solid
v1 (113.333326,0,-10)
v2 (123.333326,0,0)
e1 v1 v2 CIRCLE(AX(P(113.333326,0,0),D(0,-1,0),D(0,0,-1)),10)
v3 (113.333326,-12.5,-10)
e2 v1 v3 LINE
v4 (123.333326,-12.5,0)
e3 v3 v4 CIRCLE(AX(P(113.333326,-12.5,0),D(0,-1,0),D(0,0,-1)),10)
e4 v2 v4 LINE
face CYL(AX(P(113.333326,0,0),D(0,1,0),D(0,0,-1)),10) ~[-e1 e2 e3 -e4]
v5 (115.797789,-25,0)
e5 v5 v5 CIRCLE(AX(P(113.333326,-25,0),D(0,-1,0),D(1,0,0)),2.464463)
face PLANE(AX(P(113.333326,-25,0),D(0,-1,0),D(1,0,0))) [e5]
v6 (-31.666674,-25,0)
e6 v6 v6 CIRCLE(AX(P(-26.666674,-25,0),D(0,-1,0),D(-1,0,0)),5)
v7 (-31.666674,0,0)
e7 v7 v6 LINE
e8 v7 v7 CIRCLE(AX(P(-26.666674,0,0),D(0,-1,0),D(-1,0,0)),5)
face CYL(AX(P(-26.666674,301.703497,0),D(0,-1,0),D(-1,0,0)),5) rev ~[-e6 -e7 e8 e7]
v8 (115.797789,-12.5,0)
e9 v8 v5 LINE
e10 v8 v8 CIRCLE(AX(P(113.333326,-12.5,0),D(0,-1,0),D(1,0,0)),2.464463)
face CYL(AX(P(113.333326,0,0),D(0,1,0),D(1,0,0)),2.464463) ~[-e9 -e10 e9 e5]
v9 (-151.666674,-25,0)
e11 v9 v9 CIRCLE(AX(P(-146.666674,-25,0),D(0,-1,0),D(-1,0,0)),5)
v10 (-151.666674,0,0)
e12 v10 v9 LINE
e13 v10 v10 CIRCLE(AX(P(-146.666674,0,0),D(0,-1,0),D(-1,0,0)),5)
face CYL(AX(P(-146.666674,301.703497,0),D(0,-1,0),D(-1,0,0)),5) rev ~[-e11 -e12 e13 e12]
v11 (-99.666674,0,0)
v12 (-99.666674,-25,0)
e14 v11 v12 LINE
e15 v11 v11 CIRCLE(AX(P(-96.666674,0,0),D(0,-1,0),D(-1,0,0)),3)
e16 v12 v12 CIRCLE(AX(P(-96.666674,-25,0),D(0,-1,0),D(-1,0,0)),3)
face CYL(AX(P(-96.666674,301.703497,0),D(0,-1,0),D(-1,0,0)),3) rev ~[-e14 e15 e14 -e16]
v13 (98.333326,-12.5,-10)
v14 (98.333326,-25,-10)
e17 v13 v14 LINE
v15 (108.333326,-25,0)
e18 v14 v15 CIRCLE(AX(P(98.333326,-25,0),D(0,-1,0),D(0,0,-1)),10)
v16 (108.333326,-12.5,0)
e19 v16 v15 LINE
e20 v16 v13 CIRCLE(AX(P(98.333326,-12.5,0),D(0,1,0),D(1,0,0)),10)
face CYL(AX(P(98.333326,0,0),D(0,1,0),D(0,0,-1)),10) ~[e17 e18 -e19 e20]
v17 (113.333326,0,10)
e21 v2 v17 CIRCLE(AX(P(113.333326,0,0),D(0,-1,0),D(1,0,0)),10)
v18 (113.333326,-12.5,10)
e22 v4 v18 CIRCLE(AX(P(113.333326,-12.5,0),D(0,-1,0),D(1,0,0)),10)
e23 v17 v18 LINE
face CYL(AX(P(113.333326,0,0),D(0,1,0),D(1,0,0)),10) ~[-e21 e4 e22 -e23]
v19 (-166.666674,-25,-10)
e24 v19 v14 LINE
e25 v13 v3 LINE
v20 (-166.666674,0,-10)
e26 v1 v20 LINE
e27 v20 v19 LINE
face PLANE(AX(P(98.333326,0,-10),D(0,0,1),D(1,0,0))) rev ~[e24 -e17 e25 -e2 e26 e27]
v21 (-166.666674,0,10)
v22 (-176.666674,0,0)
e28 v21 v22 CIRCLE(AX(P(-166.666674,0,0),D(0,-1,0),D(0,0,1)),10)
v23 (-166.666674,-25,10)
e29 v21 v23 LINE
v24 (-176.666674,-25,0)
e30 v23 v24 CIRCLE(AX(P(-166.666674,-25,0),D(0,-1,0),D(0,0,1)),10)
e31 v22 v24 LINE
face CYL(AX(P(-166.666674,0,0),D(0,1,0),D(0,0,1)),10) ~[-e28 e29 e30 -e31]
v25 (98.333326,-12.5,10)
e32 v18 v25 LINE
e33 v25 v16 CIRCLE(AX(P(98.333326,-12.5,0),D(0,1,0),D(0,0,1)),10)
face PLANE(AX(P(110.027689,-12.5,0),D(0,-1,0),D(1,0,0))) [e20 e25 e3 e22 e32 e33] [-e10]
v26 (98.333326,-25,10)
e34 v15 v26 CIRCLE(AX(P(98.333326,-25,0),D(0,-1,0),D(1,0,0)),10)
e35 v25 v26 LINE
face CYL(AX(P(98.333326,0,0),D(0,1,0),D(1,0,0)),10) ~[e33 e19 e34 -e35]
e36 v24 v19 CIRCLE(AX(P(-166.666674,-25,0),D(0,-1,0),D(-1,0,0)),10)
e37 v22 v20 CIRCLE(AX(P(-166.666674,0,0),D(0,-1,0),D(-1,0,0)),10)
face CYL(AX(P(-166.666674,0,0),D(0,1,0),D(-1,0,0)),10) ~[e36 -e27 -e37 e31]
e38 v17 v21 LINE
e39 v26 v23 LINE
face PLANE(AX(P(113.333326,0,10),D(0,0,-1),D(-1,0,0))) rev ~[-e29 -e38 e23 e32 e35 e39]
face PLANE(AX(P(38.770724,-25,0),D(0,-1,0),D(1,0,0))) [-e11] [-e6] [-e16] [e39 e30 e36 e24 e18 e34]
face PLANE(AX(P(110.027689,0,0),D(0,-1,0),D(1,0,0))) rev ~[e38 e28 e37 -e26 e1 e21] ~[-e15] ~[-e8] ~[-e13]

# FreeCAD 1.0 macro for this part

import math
import FreeCAD as App
import Part
import Sketcher
from FreeCAD import Vector

doc = App.newDocument("Part")
params = doc.addObject("Spreadsheet::Sheet", "Params")
for row, (alias, value) in enumerate([
    ("sketch1_radius", "10 mm"),
    ("sketch1_width", "265 mm"),
    ("pad1_length", "25 mm"),
    ("pad2_length", "25 mm"),
    ("sketch3_radius", "10 mm"),
    ("sketch3_width", "15 mm"),
    ("pad3_length", "12.5 mm"),
    ("sketch4_diameter", "10 mm"),
    ("hole_diameter", "10 mm"),
    ("sketch5_diameter", "10 mm"),
    ("hole2_diameter", "10 mm"),
    ("sketch6_diameter", "6 mm"),
    ("hole3_diameter", "6 mm"),
], start=1):
    params.set(f"A{row}", alias)
    params.set(f"B{row}", "=" + value)
    params.setAlias(f"B{row}", alias)

body = doc.addObject("PartDesign::Body", "Body")

# Sketch on XZ plane
sketch1 = body.newObject("Sketcher::SketchObject", "Sketch")
sketch1.AttachmentSupport = (doc.getObject("XZ_Plane"), [""])
sketch1.MapMode = "FlatFace"
sketch1.addGeometry(Part.LineSegment(Vector(98, 10, 0), Vector(-167, 10, 0)), False)
sketch1.addGeometry(Part.ArcOfCircle(Part.Circle(Vector(-167, 0, 0), Vector(0, 0, 1), 10), math.radians(90), math.radians(180)), False)
sketch1.addGeometry(Part.ArcOfCircle(Part.Circle(Vector(-167, 0, 0), Vector(0, 0, 1), 10), math.radians(180), math.radians(270)), False)
sketch1.addGeometry(Part.LineSegment(Vector(-167, -10, 0), Vector(98, -10, 0)), False)
sketch1.addGeometry(Part.ArcOfCircle(Part.Circle(Vector(98, 0, 0), Vector(0, 0, 1), 10), math.radians(-90), math.radians(0)), False)
sketch1.addGeometry(Part.ArcOfCircle(Part.Circle(Vector(98, 0, 0), Vector(0, 0, 1), 10), math.radians(0), math.radians(90)), False)
sketch1.addConstraint(Sketcher.Constraint("Tangent", 0, 2, 1, 1))
sketch1.addConstraint(Sketcher.Constraint("Tangent", 1, 2, 2, 1))
sketch1.addConstraint(Sketcher.Constraint("Tangent", 2, 2, 3, 1))
sketch1.addConstraint(Sketcher.Constraint("Tangent", 3, 2, 4, 1))
sketch1.addConstraint(Sketcher.Constraint("Tangent", 4, 2, 5, 1))
sketch1.addConstraint(Sketcher.Constraint("Tangent", 5, 2, 0, 1))
sketch1.addConstraint(Sketcher.Constraint("Horizontal", 0))
sketch1.addConstraint(Sketcher.Constraint("Horizontal", 3))
sketch1.addConstraint(Sketcher.Constraint("Equal", 1, 2))
sketch1.addConstraint(Sketcher.Constraint("Equal", 2, 4))
sketch1.addConstraint(Sketcher.Constraint("PointOnObject", 1, 3, -1))
sketch1.addConstraint(Sketcher.Constraint("PointOnObject", 1, 2, -1))
sketch1.addConstraint(Sketcher.Constraint("PointOnObject", 4, 2, -1))
sketch1.addConstraint(Sketcher.Constraint("Radius", 1, 10.0))
sketch1.addConstraint(Sketcher.Constraint("DistanceX", 0, 2, 0, 1, 265.0))
sketch1.addConstraint(Sketcher.Constraint("DistanceX", 1, 3, -1, 1, 166.666674))
sketch1.setExpression("Constraints[13]", "Params.sketch1_radius")
sketch1.setExpression("Constraints[14]", "Params.sketch1_width")
pad1 = body.newObject("PartDesign::Pad", "Pad")
pad1.Profile = sketch1
pad1.setExpression("Length", "Params.pad1_length")
body2 = doc.addObject("PartDesign::Body", "Body001")

# Sketch on XZ plane
sketch2 = body2.newObject("Sketcher::SketchObject", "Sketch001")
sketch2.AttachmentSupport = (doc.getObject("XZ_Plane001"), [""])
sketch2.MapMode = "FlatFace"
sketch2.addGeometry(Part.Circle(Vector(113.3, 0, 0), Vector(0, 0, 1), 2.5), False)
sketch2.addConstraint(Sketcher.Constraint("PointOnObject", 0, 3, -1))
sketch2.addConstraint(Sketcher.Constraint("Diameter", 0, 4.928927))
sketch2.addConstraint(Sketcher.Constraint("DistanceX", -1, 1, 0, 3, 113.333326))
pad2 = body2.newObject("PartDesign::Pad", "Pad001")
pad2.Profile = sketch2
pad2.setExpression("Length", "Params.pad2_length")
body.AllowCompound = True
doc.recompute()

boolean = body.newObject("PartDesign::Boolean", "Boolean")
boolean.Type = "Fuse"
boolean.addObjects([body2])

# Sketch on XZ plane
sketch3 = body.newObject("Sketcher::SketchObject", "Sketch002")
sketch3.AttachmentSupport = (doc.getObject("XZ_Plane"), [""])
sketch3.MapMode = "FlatFace"
sketch3.addGeometry(Part.LineSegment(Vector(113.3, 10, 0), Vector(98.3, 10, 0)), False)
sketch3.addGeometry(Part.ArcOfCircle(Part.Circle(Vector(98.3, 0, 0), Vector(0, 0, 1), 10), math.radians(0), math.radians(90)), False)
sketch3.addGeometry(Part.ArcOfCircle(Part.Circle(Vector(98.3, 0, 0), Vector(0, 0, 1), 10), math.radians(-90), math.radians(0)), False)
sketch3.addGeometry(Part.LineSegment(Vector(98.3, -10, 0), Vector(113.3, -10, 0)), False)
sketch3.addGeometry(Part.ArcOfCircle(Part.Circle(Vector(113.3, 0, 0), Vector(0, 0, 1), 10), math.radians(-90), math.radians(0)), False)
sketch3.addGeometry(Part.ArcOfCircle(Part.Circle(Vector(113.3, 0, 0), Vector(0, 0, 1), 10), math.radians(0), math.radians(90)), False)
sketch3.addGeometry(Part.Circle(Vector(113.3, 0, 0), Vector(0, 0, 1), 2.5), False)
sketch3.addConstraint(Sketcher.Constraint("Tangent", 0, 2, 1, 2))
sketch3.addConstraint(Sketcher.Constraint("Tangent", 1, 1, 2, 2))
sketch3.addConstraint(Sketcher.Constraint("Tangent", 2, 1, 3, 1))
sketch3.addConstraint(Sketcher.Constraint("Tangent", 3, 2, 4, 1))
sketch3.addConstraint(Sketcher.Constraint("Tangent", 4, 2, 5, 1))
sketch3.addConstraint(Sketcher.Constraint("Tangent", 5, 2, 0, 1))
sketch3.addConstraint(Sketcher.Constraint("Horizontal", 0))
sketch3.addConstraint(Sketcher.Constraint("Horizontal", 3))
sketch3.addConstraint(Sketcher.Constraint("Coincident", 6, 3, 4, 3))
sketch3.addConstraint(Sketcher.Constraint("Equal", 1, 2))
sketch3.addConstraint(Sketcher.Constraint("Equal", 2, 4))
sketch3.addConstraint(Sketcher.Constraint("PointOnObject", 1, 3, -1))
sketch3.addConstraint(Sketcher.Constraint("PointOnObject", 1, 1, -1))
sketch3.addConstraint(Sketcher.Constraint("PointOnObject", 4, 2, -1))
sketch3.addConstraint(Sketcher.Constraint("Radius", 1, 10.0))
sketch3.addConstraint(Sketcher.Constraint("DistanceX", 0, 2, 0, 1, 15.0))
sketch3.addConstraint(Sketcher.Constraint("Diameter", 6, 4.928927))
sketch3.addConstraint(Sketcher.Constraint("DistanceX", -1, 1, 1, 3, 98.333326))
sketch3.setExpression("Constraints[14]", "Params.sketch3_radius")
sketch3.setExpression("Constraints[15]", "Params.sketch3_width")
pad3 = body.newObject("PartDesign::Pad", "Pad002")
pad3.Profile = sketch3
pad3.setExpression("Length", "Params.pad3_length")

# Sketch on XZ plane
sketch4 = body.newObject("Sketcher::SketchObject", "Sketch003")
sketch4.AttachmentSupport = (doc.getObject("XZ_Plane"), [""])
sketch4.MapMode = "FlatFace"
sketch4.addGeometry(Part.Circle(Vector(-147, 0, 0), Vector(0, 0, 1), 5), False)
sketch4.addConstraint(Sketcher.Constraint("PointOnObject", 0, 3, -1))
sketch4.addConstraint(Sketcher.Constraint("Diameter", 0, 10.0))
sketch4.addConstraint(Sketcher.Constraint("DistanceX", 0, 3, -1, 1, 146.666674))
sketch4.setExpression("Constraints[1]", "Params.sketch4_diameter")
doc.recompute()
hole = body.newObject("PartDesign::Hole", "Hole")
hole.Profile = sketch4
hole.ThreadType = "None"
hole.setExpression("Diameter", "Params.hole_diameter")
hole.DepthType = "ThroughAll"
hole.Reversed = True

# Sketch on XZ plane
sketch5 = body.newObject("Sketcher::SketchObject", "Sketch004")
sketch5.AttachmentSupport = (doc.getObject("XZ_Plane"), [""])
sketch5.MapMode = "FlatFace"
sketch5.addGeometry(Part.Circle(Vector(-27, 0, 0), Vector(0, 0, 1), 5), False)
sketch5.addConstraint(Sketcher.Constraint("PointOnObject", 0, 3, -1))
sketch5.addConstraint(Sketcher.Constraint("Diameter", 0, 10.0))
sketch5.addConstraint(Sketcher.Constraint("DistanceX", 0, 3, -1, 1, 26.666674))
sketch5.setExpression("Constraints[1]", "Params.sketch5_diameter")
doc.recompute()
hole2 = body.newObject("PartDesign::Hole", "Hole001")
hole2.Profile = sketch5
hole2.ThreadType = "None"
hole2.setExpression("Diameter", "Params.hole2_diameter")
hole2.DepthType = "ThroughAll"
hole2.Reversed = True

# Sketch on XZ plane
sketch6 = body.newObject("Sketcher::SketchObject", "Sketch005")
sketch6.AttachmentSupport = (doc.getObject("XZ_Plane"), [""])
sketch6.MapMode = "FlatFace"
sketch6.addGeometry(Part.Circle(Vector(-96.7, 0, 0), Vector(0, 0, 1), 3), False)
sketch6.addConstraint(Sketcher.Constraint("PointOnObject", 0, 3, -1))
sketch6.addConstraint(Sketcher.Constraint("Diameter", 0, 6.0))
sketch6.addConstraint(Sketcher.Constraint("DistanceX", 0, 3, -1, 1, 96.666674))
sketch6.setExpression("Constraints[1]", "Params.sketch6_diameter")
doc.recompute()
hole3 = body.newObject("PartDesign::Hole", "Hole002")
hole3.Profile = sketch6
hole3.ThreadType = "None"
hole3.setExpression("Diameter", "Params.hole3_diameter")
hole3.DepthType = "ThroughAll"
hole3.Reversed = True

doc.recompute()
